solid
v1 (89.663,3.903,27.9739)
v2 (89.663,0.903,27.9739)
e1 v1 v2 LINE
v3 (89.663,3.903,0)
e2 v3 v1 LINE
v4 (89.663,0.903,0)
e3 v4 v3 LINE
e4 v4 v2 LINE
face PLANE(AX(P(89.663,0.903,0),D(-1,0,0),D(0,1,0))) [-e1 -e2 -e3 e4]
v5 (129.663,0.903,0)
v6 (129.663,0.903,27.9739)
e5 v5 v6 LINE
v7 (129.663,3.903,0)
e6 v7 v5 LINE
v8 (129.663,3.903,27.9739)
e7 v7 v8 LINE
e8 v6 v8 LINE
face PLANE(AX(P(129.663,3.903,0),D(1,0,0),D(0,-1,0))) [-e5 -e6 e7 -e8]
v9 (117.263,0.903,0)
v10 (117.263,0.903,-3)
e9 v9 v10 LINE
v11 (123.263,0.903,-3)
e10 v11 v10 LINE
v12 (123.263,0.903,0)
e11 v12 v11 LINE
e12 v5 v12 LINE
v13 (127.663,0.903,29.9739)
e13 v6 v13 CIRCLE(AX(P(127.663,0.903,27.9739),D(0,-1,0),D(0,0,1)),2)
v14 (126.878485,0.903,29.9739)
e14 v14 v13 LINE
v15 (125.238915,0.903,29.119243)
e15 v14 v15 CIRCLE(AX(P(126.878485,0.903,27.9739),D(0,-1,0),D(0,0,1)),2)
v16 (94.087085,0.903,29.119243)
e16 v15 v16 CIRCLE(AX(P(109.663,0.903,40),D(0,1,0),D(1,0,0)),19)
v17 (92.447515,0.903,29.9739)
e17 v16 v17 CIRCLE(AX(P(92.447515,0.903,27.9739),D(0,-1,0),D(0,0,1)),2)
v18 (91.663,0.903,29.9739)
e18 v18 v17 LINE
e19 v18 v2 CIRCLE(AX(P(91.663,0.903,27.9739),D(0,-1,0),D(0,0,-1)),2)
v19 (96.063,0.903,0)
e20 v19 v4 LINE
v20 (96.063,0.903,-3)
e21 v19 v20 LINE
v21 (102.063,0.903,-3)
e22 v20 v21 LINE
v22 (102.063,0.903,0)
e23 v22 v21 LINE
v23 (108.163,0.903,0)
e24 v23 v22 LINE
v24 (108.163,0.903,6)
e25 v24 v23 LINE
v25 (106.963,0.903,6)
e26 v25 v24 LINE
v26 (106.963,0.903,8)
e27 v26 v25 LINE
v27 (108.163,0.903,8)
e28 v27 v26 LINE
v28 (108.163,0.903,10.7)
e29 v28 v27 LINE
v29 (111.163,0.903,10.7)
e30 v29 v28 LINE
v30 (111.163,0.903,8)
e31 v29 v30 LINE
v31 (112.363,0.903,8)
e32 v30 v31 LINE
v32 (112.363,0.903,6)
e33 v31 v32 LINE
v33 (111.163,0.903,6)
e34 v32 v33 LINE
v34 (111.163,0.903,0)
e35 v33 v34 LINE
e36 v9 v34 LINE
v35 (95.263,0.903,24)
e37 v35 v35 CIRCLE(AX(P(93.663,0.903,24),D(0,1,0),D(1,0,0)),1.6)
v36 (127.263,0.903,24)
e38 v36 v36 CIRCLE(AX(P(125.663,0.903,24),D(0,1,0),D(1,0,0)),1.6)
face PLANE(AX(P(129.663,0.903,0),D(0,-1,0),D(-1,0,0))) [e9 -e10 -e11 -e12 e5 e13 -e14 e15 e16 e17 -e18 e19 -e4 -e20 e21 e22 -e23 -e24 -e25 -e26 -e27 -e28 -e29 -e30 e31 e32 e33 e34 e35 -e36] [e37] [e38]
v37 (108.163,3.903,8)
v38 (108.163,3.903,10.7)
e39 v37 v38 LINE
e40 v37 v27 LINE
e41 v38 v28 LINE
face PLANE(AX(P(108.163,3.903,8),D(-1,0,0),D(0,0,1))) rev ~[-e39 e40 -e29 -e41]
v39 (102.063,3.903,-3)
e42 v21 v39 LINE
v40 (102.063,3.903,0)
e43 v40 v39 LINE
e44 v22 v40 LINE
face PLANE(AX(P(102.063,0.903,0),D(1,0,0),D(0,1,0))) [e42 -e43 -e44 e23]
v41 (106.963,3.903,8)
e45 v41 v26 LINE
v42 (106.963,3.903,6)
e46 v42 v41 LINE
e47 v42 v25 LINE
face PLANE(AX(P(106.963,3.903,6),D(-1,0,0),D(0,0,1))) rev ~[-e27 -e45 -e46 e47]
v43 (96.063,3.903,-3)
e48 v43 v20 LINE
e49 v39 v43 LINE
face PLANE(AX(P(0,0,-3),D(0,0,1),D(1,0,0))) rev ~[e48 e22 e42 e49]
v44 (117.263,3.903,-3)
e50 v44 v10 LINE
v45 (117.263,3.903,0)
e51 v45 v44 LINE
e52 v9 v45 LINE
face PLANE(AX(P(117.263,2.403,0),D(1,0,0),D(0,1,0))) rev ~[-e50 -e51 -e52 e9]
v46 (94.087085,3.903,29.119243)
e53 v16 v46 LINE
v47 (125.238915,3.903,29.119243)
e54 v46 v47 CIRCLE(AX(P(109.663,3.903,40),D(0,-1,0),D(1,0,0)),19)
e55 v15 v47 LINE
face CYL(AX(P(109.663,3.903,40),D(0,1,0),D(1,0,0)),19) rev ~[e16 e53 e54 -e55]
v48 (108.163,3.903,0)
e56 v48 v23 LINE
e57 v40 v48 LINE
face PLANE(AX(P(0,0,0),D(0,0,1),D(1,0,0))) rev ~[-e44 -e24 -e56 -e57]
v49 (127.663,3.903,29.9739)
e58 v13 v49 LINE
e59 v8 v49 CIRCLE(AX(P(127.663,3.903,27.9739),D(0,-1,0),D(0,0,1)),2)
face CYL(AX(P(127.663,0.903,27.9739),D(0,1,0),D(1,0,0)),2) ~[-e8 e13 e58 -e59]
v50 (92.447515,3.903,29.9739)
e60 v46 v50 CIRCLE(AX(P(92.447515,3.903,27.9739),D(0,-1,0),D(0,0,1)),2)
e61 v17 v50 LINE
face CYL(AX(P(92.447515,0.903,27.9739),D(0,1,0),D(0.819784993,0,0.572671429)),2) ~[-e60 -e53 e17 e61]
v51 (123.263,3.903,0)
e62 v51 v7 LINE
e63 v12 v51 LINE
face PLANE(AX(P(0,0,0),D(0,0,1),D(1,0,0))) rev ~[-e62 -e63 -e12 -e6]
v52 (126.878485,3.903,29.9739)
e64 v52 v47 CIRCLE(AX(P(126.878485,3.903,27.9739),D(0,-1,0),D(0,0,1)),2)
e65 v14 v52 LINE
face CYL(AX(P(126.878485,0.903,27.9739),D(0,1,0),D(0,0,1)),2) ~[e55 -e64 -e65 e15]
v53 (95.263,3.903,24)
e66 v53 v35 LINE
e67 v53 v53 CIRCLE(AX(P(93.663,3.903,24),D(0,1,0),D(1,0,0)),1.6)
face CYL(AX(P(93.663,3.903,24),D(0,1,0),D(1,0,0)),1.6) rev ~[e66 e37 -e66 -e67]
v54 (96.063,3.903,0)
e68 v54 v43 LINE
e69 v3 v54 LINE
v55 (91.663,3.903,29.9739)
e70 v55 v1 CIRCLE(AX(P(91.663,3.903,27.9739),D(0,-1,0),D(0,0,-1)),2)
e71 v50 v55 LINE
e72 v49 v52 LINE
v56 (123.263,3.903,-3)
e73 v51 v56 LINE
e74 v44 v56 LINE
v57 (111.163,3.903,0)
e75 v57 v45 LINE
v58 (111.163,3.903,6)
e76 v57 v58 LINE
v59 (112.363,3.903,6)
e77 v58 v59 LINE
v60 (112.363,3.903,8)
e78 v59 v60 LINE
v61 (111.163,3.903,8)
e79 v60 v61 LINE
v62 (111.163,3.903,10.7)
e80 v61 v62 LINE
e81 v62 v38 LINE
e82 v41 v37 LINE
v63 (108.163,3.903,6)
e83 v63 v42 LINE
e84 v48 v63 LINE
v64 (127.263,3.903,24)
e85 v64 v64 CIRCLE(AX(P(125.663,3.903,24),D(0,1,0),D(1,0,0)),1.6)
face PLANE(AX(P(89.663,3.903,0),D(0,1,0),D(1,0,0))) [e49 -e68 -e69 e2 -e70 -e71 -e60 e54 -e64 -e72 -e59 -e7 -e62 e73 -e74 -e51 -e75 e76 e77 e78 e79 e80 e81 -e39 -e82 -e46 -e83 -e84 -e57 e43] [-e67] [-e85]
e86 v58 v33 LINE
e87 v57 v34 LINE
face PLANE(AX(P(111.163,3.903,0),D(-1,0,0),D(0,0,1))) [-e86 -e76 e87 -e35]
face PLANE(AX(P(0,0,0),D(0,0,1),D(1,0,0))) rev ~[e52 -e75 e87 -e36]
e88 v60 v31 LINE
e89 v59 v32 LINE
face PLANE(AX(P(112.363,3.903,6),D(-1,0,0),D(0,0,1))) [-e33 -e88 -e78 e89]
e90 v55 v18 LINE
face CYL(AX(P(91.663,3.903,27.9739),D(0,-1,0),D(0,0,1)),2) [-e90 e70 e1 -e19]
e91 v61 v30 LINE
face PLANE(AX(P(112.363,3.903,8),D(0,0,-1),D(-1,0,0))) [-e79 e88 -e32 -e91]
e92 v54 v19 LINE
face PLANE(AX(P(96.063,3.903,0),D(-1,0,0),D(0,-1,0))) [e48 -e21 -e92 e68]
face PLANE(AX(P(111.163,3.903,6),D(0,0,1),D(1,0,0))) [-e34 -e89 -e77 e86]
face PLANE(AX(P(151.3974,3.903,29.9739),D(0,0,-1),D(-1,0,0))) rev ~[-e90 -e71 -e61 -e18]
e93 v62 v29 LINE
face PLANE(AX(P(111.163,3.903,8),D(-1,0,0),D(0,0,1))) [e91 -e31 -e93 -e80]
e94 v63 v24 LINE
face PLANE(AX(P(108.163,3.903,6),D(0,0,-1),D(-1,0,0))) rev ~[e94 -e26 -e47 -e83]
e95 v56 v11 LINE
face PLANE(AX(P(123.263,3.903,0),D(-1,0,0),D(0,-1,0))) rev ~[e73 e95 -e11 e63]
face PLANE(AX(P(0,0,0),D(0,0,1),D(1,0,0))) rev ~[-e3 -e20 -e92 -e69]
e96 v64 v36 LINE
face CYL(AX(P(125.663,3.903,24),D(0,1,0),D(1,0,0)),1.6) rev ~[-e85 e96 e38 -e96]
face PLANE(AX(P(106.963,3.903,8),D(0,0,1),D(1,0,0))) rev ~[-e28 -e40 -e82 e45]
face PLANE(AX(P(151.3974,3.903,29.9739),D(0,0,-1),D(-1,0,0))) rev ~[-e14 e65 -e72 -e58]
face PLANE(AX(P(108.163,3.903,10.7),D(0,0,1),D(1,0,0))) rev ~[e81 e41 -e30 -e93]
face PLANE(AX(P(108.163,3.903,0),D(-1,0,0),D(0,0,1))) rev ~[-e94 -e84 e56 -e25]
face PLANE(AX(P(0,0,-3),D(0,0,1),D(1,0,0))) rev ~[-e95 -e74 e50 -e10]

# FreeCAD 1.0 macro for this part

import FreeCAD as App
import Part
import Sketcher

V = App.Vector


def edges_at(feature, points):
    """Names of the edges that pass closest to the given points."""
    edges = feature.Shape.Edges
    near = lambda p: min(range(len(edges)), key=lambda i: edges[i].distToShape(Part.Vertex(*p))[0])
    return sorted({f"Edge{near(p) + 1}" for p in points})

doc = App.newDocument("Part")
body = doc.addObject("PartDesign::Body", "Body")
body.AllowCompound = True

# Sketch on XY plane
sketch1 = body.newObject("Sketcher::SketchObject", "Sketch")
sketch1.AttachmentSupport = (doc.getObject("XY_Plane"), [""])
sketch1.MapMode = "FlatFace"
sketch1.addGeometry([
    Part.LineSegment(V(96.1, 3.9, 0), V(96.1, 0.9, 0)),  # 0
    Part.LineSegment(V(96.1, 0.9, 0), V(102.1, 0.9, 0)),  # 1
    Part.LineSegment(V(102.1, 0.9, 0), V(102.1, 3.9, 0)),  # 2
    Part.LineSegment(V(102.1, 3.9, 0), V(96.1, 3.9, 0)),  # 3
    Part.LineSegment(V(117.3, 3.9, 0), V(117.3, 0.9, 0)),  # 4
    Part.LineSegment(V(117.3, 0.9, 0), V(123.3, 0.9, 0)),  # 5
    Part.LineSegment(V(123.3, 0.9, 0), V(123.3, 3.9, 0)),  # 6
    Part.LineSegment(V(123.3, 3.9, 0), V(117.3, 3.9, 0)),  # 7
], False)
sketch1.addConstraint([
    Sketcher.Constraint("Coincident", 0, 2, 1, 1),
    Sketcher.Constraint("Coincident", 1, 2, 2, 1),
    Sketcher.Constraint("Coincident", 2, 2, 3, 1),
    Sketcher.Constraint("Coincident", 3, 2, 0, 1),
    Sketcher.Constraint("Coincident", 4, 2, 5, 1),
    Sketcher.Constraint("Coincident", 5, 2, 6, 1),
    Sketcher.Constraint("Coincident", 6, 2, 7, 1),
    Sketcher.Constraint("Coincident", 7, 2, 4, 1),
    Sketcher.Constraint("Vertical", 0),
    Sketcher.Constraint("Horizontal", 1),
    Sketcher.Constraint("Vertical", 2),
    Sketcher.Constraint("Horizontal", 3),
    Sketcher.Constraint("Vertical", 4),
    Sketcher.Constraint("Horizontal", 5),
    Sketcher.Constraint("Vertical", 6),
    Sketcher.Constraint("Horizontal", 7),
    Sketcher.Constraint("Horizontal", 1, 2, 4, 2),
    Sketcher.Constraint("Horizontal", 3, 2, 6, 2),
    Sketcher.Constraint("Equal", 3, 5),
    Sketcher.Constraint("DistanceX", 1, 1, 1, 2, 6.0),
    Sketcher.Constraint("DistanceY", 0, 2, 0, 1, 3.0),
    Sketcher.Constraint("DistanceX", 1, 2, 4, 2, 15.2),
    Sketcher.Constraint("DistanceX", -1, 1, 0, 2, 96.063),
    Sketcher.Constraint("DistanceY", -1, 1, 0, 2, 0.903),
])
pad1 = body.newObject("PartDesign::Pad", "Pad")
pad1.Profile = sketch1
pad1.Length = 3
pad1.Reversed = True

# Sketch on XY plane
sketch2 = body.newObject("Sketcher::SketchObject", "Sketch001")
sketch2.AttachmentSupport = (doc.getObject("XY_Plane"), [""])
sketch2.MapMode = "FlatFace"
sketch2.addGeometry([
    Part.LineSegment(V(129.7, 3.9, 0), V(89.7, 3.9, 0)),
    Part.LineSegment(V(89.7, 3.9, 0), V(89.7, 0.9, 0)),
    Part.LineSegment(V(89.7, 0.9, 0), V(129.7, 0.9, 0)),
    Part.LineSegment(V(129.7, 0.9, 0), V(129.7, 3.9, 0)),
], False)
sketch2.addConstraint([
    Sketcher.Constraint("Coincident", 0, 2, 1, 1),
    Sketcher.Constraint("Coincident", 1, 2, 2, 1),
    Sketcher.Constraint("Coincident", 2, 2, 3, 1),
    Sketcher.Constraint("Coincident", 3, 2, 0, 1),
    Sketcher.Constraint("Horizontal", 0),
    Sketcher.Constraint("Vertical", 1),
    Sketcher.Constraint("Horizontal", 2),
    Sketcher.Constraint("Vertical", 3),
    Sketcher.Constraint("DistanceX", 0, 2, 0, 1, 40.0),
    Sketcher.Constraint("DistanceY", 1, 2, 1, 1, 3.0),
    Sketcher.Constraint("DistanceX", -1, 1, 0, 2, 89.663),
    Sketcher.Constraint("DistanceY", -1, 1, 0, 2, 3.903),
])
pad2 = body.newObject("PartDesign::Pad", "Pad001")
pad2.Profile = sketch2
pad2.Length = 60

# Sketch on XZ plane
sketch3 = body.newObject("Sketcher::SketchObject", "Sketch002")
sketch3.AttachmentSupport = (doc.getObject("XZ_Plane"), [""])
sketch3.MapMode = "FlatFace"
sketch3.AttachmentOffset = App.Placement(V(0, 0, -3.903), App.Rotation())
sketch3.addGeometry([
    Part.Circle(V(109.7, 40, 0), V(0, 0, 1), 19),  # 0
    Part.Circle(V(93.7, 24, 0), V(0, 0, 1), 1.6),  # 1
    Part.Circle(V(125.7, 24, 0), V(0, 0, 1), 1.6),  # 2
    Part.Circle(V(93.7, 56, 0), V(0, 0, 1), 1.6),  # 3
    Part.Circle(V(125.7, 56, 0), V(0, 0, 1), 1.6),  # 4
], False)
sketch3.addConstraint([
    Sketcher.Constraint("Equal", 1, 2),
    Sketcher.Constraint("Equal", 2, 3),
    Sketcher.Constraint("Equal", 3, 4),
    Sketcher.Constraint("Horizontal", 1, 3, 2, 3),
    Sketcher.Constraint("Horizontal", 3, 3, 4, 3),
    Sketcher.Constraint("Vertical", 1, 3, 3, 3),
    Sketcher.Constraint("Vertical", 2, 3, 4, 3),
    Sketcher.Constraint("Diameter", 0, 38.0),
    Sketcher.Constraint("Diameter", 1, 3.2),
    Sketcher.Constraint("DistanceY", -1, 1, 0, 3, 40.0),
    Sketcher.Constraint("DistanceX", 1, 3, 0, 3, 16.0),
    Sketcher.Constraint("DistanceY", 1, 3, 0, 3, 16.0),
    Sketcher.Constraint("DistanceX", 0, 3, 2, 3, 16.0),
    Sketcher.Constraint("DistanceY", 0, 3, 3, 3, 16.0),
    Sketcher.Constraint("DistanceX", -1, 1, 0, 3, 109.663),
])
pocket1 = body.newObject("PartDesign::Pocket", "Pocket")
pocket1.Profile = sketch3
pocket1.Type = "ThroughAll"
pocket1.Reversed = True
doc.recompute()

fillet = body.newObject("PartDesign::Fillet", "Fillet")
fillet.Base = (pocket1, edges_at(pocket1, [(89.663, 2.403, 60), (129.663, 2.403, 60)]))
fillet.Radius = 2

# Sketch on XZ plane
sketch4 = body.newObject("Sketcher::SketchObject", "Sketch003")
sketch4.AttachmentSupport = (doc.getObject("XZ_Plane"), [""])
sketch4.MapMode = "FlatFace"
sketch4.AttachmentOffset = App.Placement(V(0, 0, -3.903), App.Rotation())
sketch4.addGeometry([
    Part.LineSegment(V(75, 30, 0), V(75, 68, 0)),
    Part.LineSegment(V(75, 68, 0), V(151, 68, 0)),
    Part.LineSegment(V(151, 68, 0), V(151, 30, 0)),
    Part.LineSegment(V(151, 30, 0), V(75, 30, 0)),
], False)
sketch4.addConstraint([
    Sketcher.Constraint("Coincident", 0, 2, 1, 1),
    Sketcher.Constraint("Coincident", 1, 2, 2, 1),
    Sketcher.Constraint("Coincident", 2, 2, 3, 1),
    Sketcher.Constraint("Coincident", 3, 2, 0, 1),
    Sketcher.Constraint("Vertical", 0),
    Sketcher.Constraint("Horizontal", 1),
    Sketcher.Constraint("Vertical", 2),
    Sketcher.Constraint("Horizontal", 3),
    Sketcher.Constraint("DistanceX", 1, 1, 1, 2, 75.9794),
    Sketcher.Constraint("DistanceY", 0, 1, 0, 2, 38.1122),
    Sketcher.Constraint("DistanceX", -1, 1, 0, 2, 75.418),
    Sketcher.Constraint("DistanceY", -1, 1, 0, 2, 68.086),
])
pocket2 = body.newObject("PartDesign::Pocket", "Pocket001")
pocket2.Profile = sketch4
pocket2.Length = 40
pocket2.Reversed = True
doc.recompute()

fillet2 = body.newObject("PartDesign::Fillet", "Fillet001")
fillet2.Base = (pocket2, edges_at(pocket2, [
    (125.802, 2.403, 29.974),
    (93.524, 2.403, 29.974),
    (129.663, 2.403, 29.974),
    (89.663, 2.403, 29.974),
]))
fillet2.Radius = 2

# Sketch on XZ plane
sketch5 = body.newObject("Sketcher::SketchObject", "Sketch004")
sketch5.AttachmentSupport = (doc.getObject("XZ_Plane"), [""])
sketch5.MapMode = "FlatFace"
sketch5.AttachmentOffset = App.Placement(V(0, 0, -3.903), App.Rotation())
sketch5.addGeometry([
    Part.LineSegment(V(111.2, 6, 0), V(111.2, 0, 0)),  # 0
    Part.LineSegment(V(111.2, 0, 0), V(108.2, 0, 0)),  # 1
    Part.LineSegment(V(108.2, 0, 0), V(108.2, 6, 0)),  # 2
    Part.LineSegment(V(108.2, 6, 0), V(107, 6, 0)),  # 3
    Part.LineSegment(V(107, 6, 0), V(107, 8, 0)),  # 4
    Part.LineSegment(V(107, 8, 0), V(108.2, 8, 0)),  # 5
    Part.LineSegment(V(108.2, 8, 0), V(108.2, 10.7, 0)),  # 6
    Part.LineSegment(V(108.2, 10.7, 0), V(111.2, 10.7, 0)),  # 7
    Part.LineSegment(V(111.2, 10.7, 0), V(111.2, 8, 0)),  # 8
    Part.LineSegment(V(111.2, 8, 0), V(112.4, 8, 0)),  # 9
    Part.LineSegment(V(112.4, 8, 0), V(112.4, 6, 0)),  # 10
    Part.LineSegment(V(112.4, 6, 0), V(111.2, 6, 0)),  # 11
], False)
sketch5.addConstraint([
    Sketcher.Constraint("Coincident", 0, 2, 1, 1),
    Sketcher.Constraint("Coincident", 1, 2, 2, 1),
    Sketcher.Constraint("Coincident", 2, 2, 3, 1),
    Sketcher.Constraint("Coincident", 3, 2, 4, 1),
    Sketcher.Constraint("Coincident", 4, 2, 5, 1),
    Sketcher.Constraint("Coincident", 5, 2, 6, 1),
    Sketcher.Constraint("Coincident", 6, 2, 7, 1),
    Sketcher.Constraint("Coincident", 7, 2, 8, 1),
    Sketcher.Constraint("Coincident", 8, 2, 9, 1),
    Sketcher.Constraint("Coincident", 9, 2, 10, 1),
    Sketcher.Constraint("Coincident", 10, 2, 11, 1),
    Sketcher.Constraint("Coincident", 11, 2, 0, 1),
    Sketcher.Constraint("Vertical", 0),
    Sketcher.Constraint("Horizontal", 1),
    Sketcher.Constraint("Vertical", 2),
    Sketcher.Constraint("Horizontal", 3),
    Sketcher.Constraint("Vertical", 4),
    Sketcher.Constraint("Horizontal", 5),
    Sketcher.Constraint("Vertical", 6),
    Sketcher.Constraint("Horizontal", 7),
    Sketcher.Constraint("Vertical", 8),
    Sketcher.Constraint("Horizontal", 9),
    Sketcher.Constraint("Vertical", 10),
    Sketcher.Constraint("Horizontal", 11),
    Sketcher.Constraint("PointOnObject", 0, 2, -1),
    Sketcher.Constraint("Horizontal", 5, 2, 8, 2),
    Sketcher.Constraint("Horizontal", 3, 2, 10, 2),
    Sketcher.Constraint("Vertical", 2, 2, 5, 2),
    Sketcher.Constraint("Vertical", 0, 2, 7, 2),
    Sketcher.Constraint("Equal", 5, 9),
    Sketcher.Constraint("DistanceY", 0, 2, 0, 1, 6.0),
    Sketcher.Constraint("DistanceY", 4, 1, 4, 2, 2.0),
    Sketcher.Constraint("DistanceX", 3, 2, 3, 1, 1.2),
    Sketcher.Constraint("DistanceY", -1, 1, 6, 2, 10.7),
    Sketcher.Constraint("DistanceX", 1, 2, 1, 1, 3.0),
    Sketcher.Constraint("DistanceX", -1, 1, 0, 2, 111.163),
])
pocket3 = body.newObject("PartDesign::Pocket", "Pocket002")
pocket3.Profile = sketch5
pocket3.Type = "ThroughAll"
pocket3.Reversed = True

doc.recompute()
